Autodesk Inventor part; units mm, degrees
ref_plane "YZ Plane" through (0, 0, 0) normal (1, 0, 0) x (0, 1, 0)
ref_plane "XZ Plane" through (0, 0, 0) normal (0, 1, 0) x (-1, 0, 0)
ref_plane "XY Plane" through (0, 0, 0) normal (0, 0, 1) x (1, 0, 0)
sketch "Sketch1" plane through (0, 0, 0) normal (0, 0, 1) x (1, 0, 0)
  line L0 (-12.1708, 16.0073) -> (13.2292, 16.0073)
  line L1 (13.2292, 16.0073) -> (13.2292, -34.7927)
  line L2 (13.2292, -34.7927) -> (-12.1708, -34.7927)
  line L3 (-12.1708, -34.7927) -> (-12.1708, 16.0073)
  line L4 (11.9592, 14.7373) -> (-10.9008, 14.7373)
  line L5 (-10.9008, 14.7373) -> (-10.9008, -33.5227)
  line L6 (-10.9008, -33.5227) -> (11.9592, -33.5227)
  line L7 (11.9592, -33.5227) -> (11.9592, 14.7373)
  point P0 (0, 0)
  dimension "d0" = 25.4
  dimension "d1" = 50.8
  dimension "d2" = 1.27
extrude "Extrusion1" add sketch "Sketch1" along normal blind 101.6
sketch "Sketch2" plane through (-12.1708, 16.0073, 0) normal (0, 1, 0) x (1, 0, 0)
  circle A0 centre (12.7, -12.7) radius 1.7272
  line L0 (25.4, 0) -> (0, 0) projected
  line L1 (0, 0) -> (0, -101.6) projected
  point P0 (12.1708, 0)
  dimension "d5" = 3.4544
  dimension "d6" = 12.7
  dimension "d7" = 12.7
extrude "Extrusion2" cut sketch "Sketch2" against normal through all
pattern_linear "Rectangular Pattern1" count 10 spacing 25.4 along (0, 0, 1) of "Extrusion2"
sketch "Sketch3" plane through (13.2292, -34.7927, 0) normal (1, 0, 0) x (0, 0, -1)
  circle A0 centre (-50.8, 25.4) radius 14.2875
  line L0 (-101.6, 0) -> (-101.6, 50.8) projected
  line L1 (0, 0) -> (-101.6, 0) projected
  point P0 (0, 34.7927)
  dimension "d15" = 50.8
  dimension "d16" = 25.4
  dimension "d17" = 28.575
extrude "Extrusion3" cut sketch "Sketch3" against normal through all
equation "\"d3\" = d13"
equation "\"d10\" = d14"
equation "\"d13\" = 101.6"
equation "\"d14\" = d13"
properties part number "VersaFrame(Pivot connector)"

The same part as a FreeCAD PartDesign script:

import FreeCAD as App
import Part
import Sketcher

V = App.Vector
Q = App.Units.Quantity

doc = App.newDocument("Part")
body = doc.addObject("PartDesign::Body", "Body")

# Sketch on XY plane
sketch1 = body.newObject("Sketcher::SketchObject", "Sketch")
sketch1.AttachmentSupport = (doc.getObject("XY_Plane"), [""])
sketch1.MapMode = "FlatFace"
sketch1.addGeometry(Part.LineSegment(V(13, 16, 0), V(-12, 16, 0)), False)
sketch1.addGeometry(Part.LineSegment(V(-12, 16, 0), V(-12, -35, 0)), False)
sketch1.addGeometry(Part.LineSegment(V(-12, -35, 0), V(13, -35, 0)), False)
sketch1.addGeometry(Part.LineSegment(V(13, -35, 0), V(13, 16, 0)), False)
sketch1.addGeometry(Part.LineSegment(V(-11, 15, 0), V(12, 15, 0)), False)
sketch1.addGeometry(Part.LineSegment(V(12, 15, 0), V(12, -34, 0)), False)
sketch1.addGeometry(Part.LineSegment(V(12, -34, 0), V(-11, -34, 0)), False)
sketch1.addGeometry(Part.LineSegment(V(-11, -34, 0), V(-11, 15, 0)), False)
sketch1.addConstraint(Sketcher.Constraint("Coincident", 0, 2, 1, 1))
sketch1.addConstraint(Sketcher.Constraint("Coincident", 1, 2, 2, 1))
sketch1.addConstraint(Sketcher.Constraint("Coincident", 2, 2, 3, 1))
sketch1.addConstraint(Sketcher.Constraint("Coincident", 3, 2, 0, 1))
sketch1.addConstraint(Sketcher.Constraint("Coincident", 4, 2, 5, 1))
sketch1.addConstraint(Sketcher.Constraint("Coincident", 5, 2, 6, 1))
sketch1.addConstraint(Sketcher.Constraint("Coincident", 6, 2, 7, 1))
sketch1.addConstraint(Sketcher.Constraint("Coincident", 7, 2, 4, 1))
sketch1.addConstraint(Sketcher.Constraint("Horizontal", 0))
sketch1.addConstraint(Sketcher.Constraint("Vertical", 1))
sketch1.addConstraint(Sketcher.Constraint("Horizontal", 2))
sketch1.addConstraint(Sketcher.Constraint("Vertical", 3))
sketch1.addConstraint(Sketcher.Constraint("Horizontal", 4))
sketch1.addConstraint(Sketcher.Constraint("Vertical", 5))
sketch1.addConstraint(Sketcher.Constraint("Horizontal", 6))
sketch1.addConstraint(Sketcher.Constraint("Vertical", 7))
sketch1.addConstraint(Sketcher.Constraint("DistanceX", 0, 2, 0, 1, Q("1 in")))
sketch1.addConstraint(Sketcher.Constraint("DistanceY", 1, 2, 1, 1, Q("2 in")))
sketch1.addConstraint(Sketcher.Constraint("DistanceX", 4, 2, 3, 2, Q("0.05 in")))
sketch1.addConstraint(Sketcher.Constraint("DistanceY", 4, 2, 3, 2, Q("0.05 in")))
sketch1.addConstraint(Sketcher.Constraint("DistanceY", 2, 2, 5, 2, Q("0.05 in")))
sketch1.addConstraint(Sketcher.Constraint("DistanceX", 1, 2, 6, 2, Q("0.05 in")))
sketch1.addConstraint(Sketcher.Constraint("DistanceY", -1, 1, 0, 2, Q("0.6302 in")))
sketch1.addConstraint(Sketcher.Constraint("DistanceX", 0, 2, -1, 1, 12.1708))
pad1 = body.newObject("PartDesign::Pad", "Pad")
pad1.Profile = sketch1
pad1.Length = Q("4 in")

# Sketch on XZ plane
sketch2 = body.newObject("Sketcher::SketchObject", "Sketch001")
sketch2.AttachmentSupport = (doc.getObject("XZ_Plane"), [""])
sketch2.MapMode = "FlatFace"
sketch2.AttachmentOffset = App.Placement(V(0, 0, -0.6302087 * 25.4), App.Rotation())
sketch2.addGeometry(Part.Circle(V(0.5, 12.7, 0), V(0, 0, 1), 1.7), False)
sketch2.addConstraint(Sketcher.Constraint("Diameter", 0, Q("0.136 in")))
sketch2.addConstraint(Sketcher.Constraint("DistanceY", -1, 1, 0, 3, Q("0.5 in")))
sketch2.addConstraint(Sketcher.Constraint("DistanceX", -1, 1, 0, 3, 0.5292))
pocket1 = body.newObject("PartDesign::Pocket", "Pocket")
pocket1.Profile = sketch2
pocket1.Type = "ThroughAll"
pocket1.Reversed = True
doc.recompute()

linearpattern = body.newObject("PartDesign::LinearPattern", "LinearPattern")
linearpattern.Originals = [pocket1]
linearpattern.Direction = (doc.getObject("Z_Axis"), [""])
linearpattern.Mode = "offset"
linearpattern.Offset = Q("1 in")
linearpattern.Occurrences = 10
body.Tip = linearpattern

# Sketch on YZ plane
sketch3 = body.newObject("Sketcher::SketchObject", "Sketch002")
sketch3.AttachmentSupport = (doc.getObject("YZ_Plane"), [""])
sketch3.MapMode = "FlatFace"
sketch3.AttachmentOffset = App.Placement(V(0, 0, 13.2292), App.Rotation())
sketch3.addGeometry(Part.Circle(V(-9, 51, 0), V(0, 0, 1), 14), False)
sketch3.addConstraint(Sketcher.Constraint("Diameter", 0, Q("1.125 in")))
sketch3.addConstraint(Sketcher.Constraint("DistanceY", -1, 1, 0, 3, Q("2 in")))
sketch3.addConstraint(Sketcher.Constraint("DistanceX", 0, 3, -1, 1, Q("0.3698 in")))
pocket2 = body.newObject("PartDesign::Pocket", "Pocket001")
pocket2.Profile = sketch3
pocket2.Type = "ThroughAll"

doc.recompute()
